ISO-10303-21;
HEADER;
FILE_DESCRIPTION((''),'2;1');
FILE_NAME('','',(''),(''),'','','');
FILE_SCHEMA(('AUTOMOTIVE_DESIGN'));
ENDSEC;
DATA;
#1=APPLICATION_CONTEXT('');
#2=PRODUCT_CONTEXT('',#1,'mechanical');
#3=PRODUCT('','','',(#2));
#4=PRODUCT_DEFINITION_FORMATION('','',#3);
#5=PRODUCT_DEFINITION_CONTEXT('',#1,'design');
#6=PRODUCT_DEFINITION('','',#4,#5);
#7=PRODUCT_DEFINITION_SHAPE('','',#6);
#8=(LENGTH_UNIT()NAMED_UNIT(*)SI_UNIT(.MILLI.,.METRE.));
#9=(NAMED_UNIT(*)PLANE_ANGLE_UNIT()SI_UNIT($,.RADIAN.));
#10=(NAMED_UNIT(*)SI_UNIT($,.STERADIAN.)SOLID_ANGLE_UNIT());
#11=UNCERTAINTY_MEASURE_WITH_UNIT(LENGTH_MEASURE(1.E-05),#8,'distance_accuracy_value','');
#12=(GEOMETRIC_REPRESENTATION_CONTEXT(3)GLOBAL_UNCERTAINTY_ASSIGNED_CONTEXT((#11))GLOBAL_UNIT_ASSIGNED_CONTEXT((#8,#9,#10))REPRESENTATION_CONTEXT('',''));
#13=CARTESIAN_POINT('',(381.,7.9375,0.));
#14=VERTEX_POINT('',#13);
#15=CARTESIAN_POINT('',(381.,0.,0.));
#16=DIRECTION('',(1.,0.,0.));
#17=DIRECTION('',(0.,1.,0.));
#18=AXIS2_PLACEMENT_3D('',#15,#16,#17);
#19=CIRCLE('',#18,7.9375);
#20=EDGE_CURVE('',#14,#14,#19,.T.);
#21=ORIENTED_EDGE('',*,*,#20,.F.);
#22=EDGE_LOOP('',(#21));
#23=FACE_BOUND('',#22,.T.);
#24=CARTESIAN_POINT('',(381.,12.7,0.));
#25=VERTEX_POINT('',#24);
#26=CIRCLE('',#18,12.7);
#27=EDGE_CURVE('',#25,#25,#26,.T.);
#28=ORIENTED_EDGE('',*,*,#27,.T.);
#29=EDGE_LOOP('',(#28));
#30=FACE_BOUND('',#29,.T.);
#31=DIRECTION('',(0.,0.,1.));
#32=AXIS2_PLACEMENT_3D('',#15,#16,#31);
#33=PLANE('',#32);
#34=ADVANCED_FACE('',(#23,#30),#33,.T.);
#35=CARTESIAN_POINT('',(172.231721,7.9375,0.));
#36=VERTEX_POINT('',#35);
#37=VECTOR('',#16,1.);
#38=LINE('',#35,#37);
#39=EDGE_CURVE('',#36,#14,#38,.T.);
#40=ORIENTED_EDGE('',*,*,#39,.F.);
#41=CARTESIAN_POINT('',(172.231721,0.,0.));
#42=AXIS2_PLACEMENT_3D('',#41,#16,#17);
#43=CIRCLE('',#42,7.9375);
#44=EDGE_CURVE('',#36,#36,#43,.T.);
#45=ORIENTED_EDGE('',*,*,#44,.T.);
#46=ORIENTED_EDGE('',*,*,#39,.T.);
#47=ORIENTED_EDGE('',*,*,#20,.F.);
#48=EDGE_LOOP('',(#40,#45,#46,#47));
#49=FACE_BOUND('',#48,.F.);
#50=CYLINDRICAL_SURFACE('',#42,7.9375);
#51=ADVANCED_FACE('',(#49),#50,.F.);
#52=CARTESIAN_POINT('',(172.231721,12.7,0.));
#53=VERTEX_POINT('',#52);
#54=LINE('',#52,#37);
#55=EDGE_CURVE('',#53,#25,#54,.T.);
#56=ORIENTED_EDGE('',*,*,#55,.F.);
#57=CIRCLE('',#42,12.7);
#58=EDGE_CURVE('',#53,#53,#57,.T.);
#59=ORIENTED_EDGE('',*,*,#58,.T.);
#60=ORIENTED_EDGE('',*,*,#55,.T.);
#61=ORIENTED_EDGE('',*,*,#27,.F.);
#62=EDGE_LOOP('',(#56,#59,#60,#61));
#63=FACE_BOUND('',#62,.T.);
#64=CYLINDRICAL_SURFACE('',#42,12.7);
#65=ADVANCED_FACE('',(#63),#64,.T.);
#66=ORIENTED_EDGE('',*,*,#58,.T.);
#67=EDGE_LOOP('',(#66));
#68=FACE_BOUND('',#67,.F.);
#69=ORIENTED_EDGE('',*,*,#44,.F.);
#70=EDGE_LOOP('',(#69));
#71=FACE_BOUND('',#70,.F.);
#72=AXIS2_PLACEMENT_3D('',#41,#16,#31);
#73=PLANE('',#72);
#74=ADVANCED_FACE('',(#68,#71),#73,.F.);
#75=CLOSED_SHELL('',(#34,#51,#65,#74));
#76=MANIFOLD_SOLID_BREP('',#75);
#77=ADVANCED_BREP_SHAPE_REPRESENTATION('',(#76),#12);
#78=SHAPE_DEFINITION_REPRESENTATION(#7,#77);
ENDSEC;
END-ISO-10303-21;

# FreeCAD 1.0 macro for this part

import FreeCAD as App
import Part
import Sketcher

V = App.Vector
Q = App.Units.Quantity

doc = App.newDocument("Part")
body = doc.addObject("PartDesign::Body", "Body")

# Sketch on YZ plane
sketch1 = body.newObject("Sketcher::SketchObject", "Sketch")
sketch1.AttachmentSupport = (doc.getObject("YZ_Plane"), [""])
sketch1.MapMode = "FlatFace"
sketch1.AttachmentOffset = App.Placement(V(0, 0, 15 * 25.4), App.Rotation())
sketch1.addGeometry(Part.Circle(V(0, 0, 0), V(0, 0, 1), 13), False)
sketch1.addGeometry(Part.Circle(V(0, 0, 0), V(0, 0, 1), 8), False)
sketch1.addConstraint(Sketcher.Constraint("Coincident", 0, 3, -1, 1))
sketch1.addConstraint(Sketcher.Constraint("Coincident", 1, 3, -1, 1))
sketch1.addConstraint(Sketcher.Constraint("Diameter", 0, Q("1 in")))
sketch1.addConstraint(Sketcher.Constraint("Diameter", 1, Q("0.625 in")))

# Sketch on XY plane
sketch2 = body.newObject("Sketcher::SketchObject", "Sketch001")
sketch2.AttachmentSupport = (doc.getObject("XY_Plane"), [""])
sketch2.MapMode = "FlatFace"
sketch2.addGeometry(Part.LineSegment(V(172, 0, 0), V(381, 0, 0)), False)
sketch2.addConstraint(Sketcher.Constraint("Horizontal", 0))
sketch2.addConstraint(Sketcher.Constraint("PointOnObject", 0, 1, -1))
sketch2.addConstraint(Sketcher.Constraint("DistanceX", -1, 1, 0, 2, Q("15 in")))
sketch2.addConstraint(Sketcher.Constraint("DistanceX", 0, 1, 0, 2, 208.768279))
doc.recompute()

additivepipe = body.newObject("PartDesign::AdditivePipe", "AdditivePipe")
additivepipe.Profile = sketch1
additivepipe.Spine = (sketch2, ["Edge1"])

doc.recompute()
